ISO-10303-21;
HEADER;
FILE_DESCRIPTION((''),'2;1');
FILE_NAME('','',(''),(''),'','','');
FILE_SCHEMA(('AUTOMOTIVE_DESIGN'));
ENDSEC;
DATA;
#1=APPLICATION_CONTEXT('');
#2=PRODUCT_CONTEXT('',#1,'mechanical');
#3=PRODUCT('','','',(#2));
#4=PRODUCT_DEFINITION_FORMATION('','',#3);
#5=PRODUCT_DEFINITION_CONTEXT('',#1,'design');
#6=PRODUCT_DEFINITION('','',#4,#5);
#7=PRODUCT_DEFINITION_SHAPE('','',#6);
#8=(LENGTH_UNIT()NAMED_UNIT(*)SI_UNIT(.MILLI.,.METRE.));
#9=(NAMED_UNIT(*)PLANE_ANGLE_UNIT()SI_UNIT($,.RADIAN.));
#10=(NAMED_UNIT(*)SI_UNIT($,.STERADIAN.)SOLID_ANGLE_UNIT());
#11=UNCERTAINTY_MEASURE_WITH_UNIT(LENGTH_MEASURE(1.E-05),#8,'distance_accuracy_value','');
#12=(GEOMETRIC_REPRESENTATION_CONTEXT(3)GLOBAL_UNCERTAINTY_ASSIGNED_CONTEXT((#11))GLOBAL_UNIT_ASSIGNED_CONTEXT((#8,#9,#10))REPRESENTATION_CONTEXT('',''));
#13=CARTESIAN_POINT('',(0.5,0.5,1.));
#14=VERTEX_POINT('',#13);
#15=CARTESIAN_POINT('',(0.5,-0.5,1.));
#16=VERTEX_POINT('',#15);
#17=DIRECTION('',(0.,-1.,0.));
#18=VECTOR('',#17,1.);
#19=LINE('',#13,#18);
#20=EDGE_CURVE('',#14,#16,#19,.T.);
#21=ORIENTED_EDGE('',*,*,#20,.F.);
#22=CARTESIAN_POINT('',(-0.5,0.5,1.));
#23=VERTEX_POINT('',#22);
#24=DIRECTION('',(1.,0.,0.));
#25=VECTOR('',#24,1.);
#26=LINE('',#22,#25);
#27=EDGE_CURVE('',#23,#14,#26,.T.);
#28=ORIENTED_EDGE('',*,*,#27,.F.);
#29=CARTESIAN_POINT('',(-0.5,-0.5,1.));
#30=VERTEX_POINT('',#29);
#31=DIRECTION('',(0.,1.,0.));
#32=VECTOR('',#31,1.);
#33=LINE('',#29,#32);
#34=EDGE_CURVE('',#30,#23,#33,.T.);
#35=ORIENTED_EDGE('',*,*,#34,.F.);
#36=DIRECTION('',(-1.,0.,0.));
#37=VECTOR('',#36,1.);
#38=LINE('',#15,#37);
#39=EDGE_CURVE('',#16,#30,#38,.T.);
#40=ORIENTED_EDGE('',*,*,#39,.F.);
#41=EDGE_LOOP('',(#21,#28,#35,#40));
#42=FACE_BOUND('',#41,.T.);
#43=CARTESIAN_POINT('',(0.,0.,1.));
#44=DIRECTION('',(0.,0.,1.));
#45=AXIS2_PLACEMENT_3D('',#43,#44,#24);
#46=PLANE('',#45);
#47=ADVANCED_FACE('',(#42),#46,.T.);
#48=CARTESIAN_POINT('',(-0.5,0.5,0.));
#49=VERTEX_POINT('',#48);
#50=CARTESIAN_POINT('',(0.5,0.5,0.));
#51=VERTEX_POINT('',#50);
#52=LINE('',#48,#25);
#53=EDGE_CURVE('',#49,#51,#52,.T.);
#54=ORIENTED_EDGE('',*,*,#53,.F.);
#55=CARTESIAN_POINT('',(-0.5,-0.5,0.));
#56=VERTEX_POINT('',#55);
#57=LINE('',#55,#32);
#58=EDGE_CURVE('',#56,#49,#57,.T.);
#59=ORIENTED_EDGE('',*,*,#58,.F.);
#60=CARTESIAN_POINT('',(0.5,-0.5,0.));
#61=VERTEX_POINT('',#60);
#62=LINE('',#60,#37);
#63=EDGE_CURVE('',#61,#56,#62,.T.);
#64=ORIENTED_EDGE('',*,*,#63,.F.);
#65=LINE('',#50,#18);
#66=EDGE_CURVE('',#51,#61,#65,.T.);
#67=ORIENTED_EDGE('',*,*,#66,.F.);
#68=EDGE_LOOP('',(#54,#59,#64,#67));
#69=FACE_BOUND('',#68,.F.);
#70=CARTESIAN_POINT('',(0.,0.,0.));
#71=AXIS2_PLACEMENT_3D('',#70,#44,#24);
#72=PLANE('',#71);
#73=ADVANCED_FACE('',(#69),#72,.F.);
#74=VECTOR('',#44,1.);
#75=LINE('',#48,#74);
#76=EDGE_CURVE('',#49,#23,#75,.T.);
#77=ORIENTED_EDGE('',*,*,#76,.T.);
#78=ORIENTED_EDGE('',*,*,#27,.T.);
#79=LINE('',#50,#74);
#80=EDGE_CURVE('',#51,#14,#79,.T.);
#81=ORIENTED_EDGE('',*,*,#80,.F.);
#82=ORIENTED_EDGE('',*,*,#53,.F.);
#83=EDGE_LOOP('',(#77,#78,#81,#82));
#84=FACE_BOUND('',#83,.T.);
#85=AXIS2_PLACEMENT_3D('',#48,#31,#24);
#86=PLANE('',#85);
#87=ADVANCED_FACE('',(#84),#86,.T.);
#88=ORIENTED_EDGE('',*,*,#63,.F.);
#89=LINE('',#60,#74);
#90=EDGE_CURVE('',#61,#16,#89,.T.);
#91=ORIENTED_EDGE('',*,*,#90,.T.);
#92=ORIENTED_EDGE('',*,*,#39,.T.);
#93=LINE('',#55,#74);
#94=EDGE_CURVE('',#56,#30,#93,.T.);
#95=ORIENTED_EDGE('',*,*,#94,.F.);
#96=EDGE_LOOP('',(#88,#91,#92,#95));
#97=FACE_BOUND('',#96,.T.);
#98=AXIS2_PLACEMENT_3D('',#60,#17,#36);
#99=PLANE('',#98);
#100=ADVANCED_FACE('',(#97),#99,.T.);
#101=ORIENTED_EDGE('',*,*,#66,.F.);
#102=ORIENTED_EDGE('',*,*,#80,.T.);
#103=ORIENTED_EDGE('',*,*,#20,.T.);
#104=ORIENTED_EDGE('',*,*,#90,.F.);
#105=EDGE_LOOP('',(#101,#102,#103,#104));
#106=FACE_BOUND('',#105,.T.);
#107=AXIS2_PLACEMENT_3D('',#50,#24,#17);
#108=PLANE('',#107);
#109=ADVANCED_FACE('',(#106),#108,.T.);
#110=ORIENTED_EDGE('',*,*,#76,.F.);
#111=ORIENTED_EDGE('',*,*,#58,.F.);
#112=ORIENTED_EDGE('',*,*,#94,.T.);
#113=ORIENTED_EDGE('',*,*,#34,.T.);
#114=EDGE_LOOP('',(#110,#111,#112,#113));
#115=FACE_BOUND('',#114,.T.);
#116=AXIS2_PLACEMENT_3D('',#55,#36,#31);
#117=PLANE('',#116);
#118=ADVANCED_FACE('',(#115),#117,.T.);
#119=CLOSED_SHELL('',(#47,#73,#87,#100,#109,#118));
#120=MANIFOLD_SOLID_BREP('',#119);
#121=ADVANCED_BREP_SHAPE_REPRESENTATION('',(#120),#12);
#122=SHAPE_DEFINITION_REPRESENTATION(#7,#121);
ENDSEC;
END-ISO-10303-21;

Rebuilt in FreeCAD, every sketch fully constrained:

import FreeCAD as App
import Part
import Sketcher

V = App.Vector


def add_polygon(sketch, points):
    """Adds a closed chain of lines whose ends are joined by coincident constraints."""
    first, n = sketch.GeometryCount, len(points)
    for a, b in zip(points, points[1:] + points[:1]):
        sketch.addGeometry(Part.LineSegment(App.Vector(*a, 0), App.Vector(*b, 0)), False)
    for i in range(n):
        sketch.addConstraint(Sketcher.Constraint("Coincident", first + i, 2, first + (i + 1) % n, 1))

doc = App.newDocument("Part")
body = doc.addObject("PartDesign::Body", "Body")

sketch1 = body.newObject("Sketcher::SketchObject", "Sketch")
sketch1.AttachmentSupport = (doc.getObject("XY_Plane"), [""])
sketch1.MapMode = "FlatFace"
add_polygon(sketch1, [(-0.5, 0.5), (-0.5, -0.5), (0.5, -0.5), (0.5, 0.5)])
sketch1.addConstraint([
    Sketcher.Constraint("Vertical", 0),
    Sketcher.Constraint("Horizontal", 1),
    Sketcher.Constraint("Vertical", 2),
    Sketcher.Constraint("Horizontal", 3),
    Sketcher.Constraint("Symmetric", 0, 2, 2, 2, -1, 1),
    Sketcher.Constraint("Equal", 3, 0),
    Sketcher.Constraint("DistanceX", 1, 1, 1, 2, 1.0),
])
pad1 = body.newObject("PartDesign::Pad", "Pad")
pad1.Profile = sketch1
pad1.Length = 1

doc.recompute()
